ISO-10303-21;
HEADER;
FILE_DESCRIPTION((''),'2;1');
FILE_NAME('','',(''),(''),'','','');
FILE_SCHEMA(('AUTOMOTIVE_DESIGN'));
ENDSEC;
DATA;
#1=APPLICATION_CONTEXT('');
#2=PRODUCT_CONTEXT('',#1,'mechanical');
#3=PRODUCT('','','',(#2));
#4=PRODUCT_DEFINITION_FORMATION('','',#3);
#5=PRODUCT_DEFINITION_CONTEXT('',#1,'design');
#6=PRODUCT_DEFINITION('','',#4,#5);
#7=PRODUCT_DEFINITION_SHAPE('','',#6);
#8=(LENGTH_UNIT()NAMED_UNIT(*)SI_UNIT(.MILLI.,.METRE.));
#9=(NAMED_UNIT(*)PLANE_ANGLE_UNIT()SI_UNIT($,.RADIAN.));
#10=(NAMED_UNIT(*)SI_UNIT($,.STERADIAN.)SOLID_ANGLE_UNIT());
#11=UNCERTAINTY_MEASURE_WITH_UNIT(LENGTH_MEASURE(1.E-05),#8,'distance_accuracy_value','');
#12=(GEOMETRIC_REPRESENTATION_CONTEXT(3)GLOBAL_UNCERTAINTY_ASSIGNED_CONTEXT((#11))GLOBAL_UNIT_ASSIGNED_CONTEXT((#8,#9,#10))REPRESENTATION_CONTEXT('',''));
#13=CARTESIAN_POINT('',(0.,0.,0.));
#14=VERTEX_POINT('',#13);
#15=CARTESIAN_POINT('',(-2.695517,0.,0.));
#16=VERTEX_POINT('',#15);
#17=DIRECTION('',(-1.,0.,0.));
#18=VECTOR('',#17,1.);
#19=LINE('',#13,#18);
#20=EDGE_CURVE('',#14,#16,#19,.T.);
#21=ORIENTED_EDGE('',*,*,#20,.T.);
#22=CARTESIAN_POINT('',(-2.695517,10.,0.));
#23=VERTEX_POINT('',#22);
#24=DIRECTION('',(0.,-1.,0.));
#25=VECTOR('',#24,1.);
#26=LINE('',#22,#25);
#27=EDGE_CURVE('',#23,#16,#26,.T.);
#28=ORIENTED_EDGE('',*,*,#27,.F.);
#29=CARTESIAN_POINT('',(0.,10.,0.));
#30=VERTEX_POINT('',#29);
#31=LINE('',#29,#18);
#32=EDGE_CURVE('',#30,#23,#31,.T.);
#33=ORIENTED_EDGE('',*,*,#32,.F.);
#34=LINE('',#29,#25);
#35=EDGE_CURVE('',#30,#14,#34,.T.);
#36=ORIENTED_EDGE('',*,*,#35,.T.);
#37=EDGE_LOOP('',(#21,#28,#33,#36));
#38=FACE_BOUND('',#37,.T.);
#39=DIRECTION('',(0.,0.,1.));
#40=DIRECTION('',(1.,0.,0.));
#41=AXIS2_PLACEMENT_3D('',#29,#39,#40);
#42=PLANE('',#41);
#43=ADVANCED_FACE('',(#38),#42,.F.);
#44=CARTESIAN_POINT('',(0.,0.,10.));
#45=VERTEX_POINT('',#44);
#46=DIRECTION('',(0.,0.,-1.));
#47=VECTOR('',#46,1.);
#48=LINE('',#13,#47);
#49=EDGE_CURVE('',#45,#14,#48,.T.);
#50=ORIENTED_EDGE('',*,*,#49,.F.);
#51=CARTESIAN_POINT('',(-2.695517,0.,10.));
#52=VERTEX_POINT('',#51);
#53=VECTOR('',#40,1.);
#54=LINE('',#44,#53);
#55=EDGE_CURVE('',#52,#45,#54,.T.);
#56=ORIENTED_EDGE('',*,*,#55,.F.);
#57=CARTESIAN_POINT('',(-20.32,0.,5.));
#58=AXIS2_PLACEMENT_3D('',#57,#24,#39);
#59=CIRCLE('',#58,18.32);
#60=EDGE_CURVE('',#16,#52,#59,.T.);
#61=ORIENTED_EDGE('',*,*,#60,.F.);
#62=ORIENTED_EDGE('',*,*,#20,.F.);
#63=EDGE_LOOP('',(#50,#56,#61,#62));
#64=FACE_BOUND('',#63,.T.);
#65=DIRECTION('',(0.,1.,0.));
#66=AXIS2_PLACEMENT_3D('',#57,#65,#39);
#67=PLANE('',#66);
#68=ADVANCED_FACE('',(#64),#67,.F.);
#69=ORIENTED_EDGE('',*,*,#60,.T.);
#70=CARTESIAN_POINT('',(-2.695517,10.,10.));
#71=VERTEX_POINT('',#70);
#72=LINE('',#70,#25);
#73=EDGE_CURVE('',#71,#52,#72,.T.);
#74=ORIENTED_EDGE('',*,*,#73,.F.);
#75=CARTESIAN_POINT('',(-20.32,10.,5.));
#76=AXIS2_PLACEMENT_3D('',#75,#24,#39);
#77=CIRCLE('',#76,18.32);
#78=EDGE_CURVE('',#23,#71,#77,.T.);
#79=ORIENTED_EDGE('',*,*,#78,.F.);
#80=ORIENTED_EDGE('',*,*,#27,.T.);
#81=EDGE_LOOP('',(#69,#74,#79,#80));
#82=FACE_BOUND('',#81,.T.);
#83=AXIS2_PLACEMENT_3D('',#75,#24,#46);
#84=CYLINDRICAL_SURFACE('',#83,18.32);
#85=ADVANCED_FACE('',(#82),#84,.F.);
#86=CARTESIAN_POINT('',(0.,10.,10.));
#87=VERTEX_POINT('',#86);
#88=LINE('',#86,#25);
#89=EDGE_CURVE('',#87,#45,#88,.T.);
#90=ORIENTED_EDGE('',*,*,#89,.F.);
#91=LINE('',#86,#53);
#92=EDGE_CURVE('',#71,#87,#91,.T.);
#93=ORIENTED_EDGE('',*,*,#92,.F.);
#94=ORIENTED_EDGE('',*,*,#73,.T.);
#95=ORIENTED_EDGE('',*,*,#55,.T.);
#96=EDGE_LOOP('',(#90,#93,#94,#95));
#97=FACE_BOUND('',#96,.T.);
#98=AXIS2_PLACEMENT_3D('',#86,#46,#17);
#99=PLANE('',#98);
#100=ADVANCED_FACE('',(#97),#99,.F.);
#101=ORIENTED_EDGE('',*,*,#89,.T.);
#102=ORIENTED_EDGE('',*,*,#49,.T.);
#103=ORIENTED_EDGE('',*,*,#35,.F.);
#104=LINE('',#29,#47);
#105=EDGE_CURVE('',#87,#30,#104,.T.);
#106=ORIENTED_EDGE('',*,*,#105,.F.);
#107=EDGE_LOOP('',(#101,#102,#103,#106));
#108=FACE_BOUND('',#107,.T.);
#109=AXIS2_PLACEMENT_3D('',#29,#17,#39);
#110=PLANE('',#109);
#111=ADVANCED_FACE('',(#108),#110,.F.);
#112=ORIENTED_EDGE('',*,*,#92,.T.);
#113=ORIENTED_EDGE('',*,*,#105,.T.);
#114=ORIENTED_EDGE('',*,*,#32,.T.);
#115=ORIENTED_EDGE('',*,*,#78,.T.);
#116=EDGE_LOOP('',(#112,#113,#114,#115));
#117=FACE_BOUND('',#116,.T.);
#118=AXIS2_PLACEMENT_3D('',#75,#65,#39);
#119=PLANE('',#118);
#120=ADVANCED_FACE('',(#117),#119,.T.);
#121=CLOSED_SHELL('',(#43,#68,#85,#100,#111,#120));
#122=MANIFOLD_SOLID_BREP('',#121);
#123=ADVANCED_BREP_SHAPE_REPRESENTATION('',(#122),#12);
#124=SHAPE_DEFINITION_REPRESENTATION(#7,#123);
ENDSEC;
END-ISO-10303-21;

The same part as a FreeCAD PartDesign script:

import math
import FreeCAD as App
import Part
import Sketcher
from FreeCAD import Vector

doc = App.newDocument("Part")
body = doc.addObject("PartDesign::Body", "Body")

# Sketch on XZ plane
sketch1 = doc.addObject("Sketcher::SketchObject", "Sketch")
body.addObject(sketch1)
sketch1.AttachmentSupport = (doc.XZ_Plane, [""])
sketch1.MapMode = "FlatFace"
sketch1.addGeometry([
    Part.LineSegment(Vector(0, 10, 0), Vector(0, 0, 0)),
    Part.LineSegment(Vector(0, 0, 0), Vector(-2.7, 0, 0)),
    Part.ArcOfCircle(Part.Circle(Vector(-20.3, 5, 0), Vector(0, 0, 1), 18.3), math.radians(-16), math.radians(16)),
    Part.LineSegment(Vector(-2.7, 10, 0), Vector(0, 10, 0)),
], False)
sketch1.addConstraint([
    Sketcher.Constraint("Coincident", 0, 2, 1, 1),
    Sketcher.Constraint("Coincident", 1, 2, 2, 1),
    Sketcher.Constraint("Coincident", 2, 2, 3, 1),
    Sketcher.Constraint("Coincident", 3, 2, 0, 1),
    Sketcher.Constraint("Vertical", 0),
    Sketcher.Constraint("Horizontal", 1),
    Sketcher.Constraint("Horizontal", 3),
    Sketcher.Constraint("Coincident", 0, 2, -1, 1),
    Sketcher.Constraint("Vertical", 1, 2, 2, 2),
    Sketcher.Constraint("DistanceY", 0, 2, 0, 1, 10.0),
    Sketcher.Constraint("Radius", 2, 18.32),
    Sketcher.Constraint("DistanceX", 2, 3, -1, 1, 20.32),
])
pad1 = doc.addObject("PartDesign::Pad", "Pad")
body.addObject(pad1)
pad1.Profile = sketch1
pad1.Length = 10
pad1.Reversed = True

doc.recompute()
